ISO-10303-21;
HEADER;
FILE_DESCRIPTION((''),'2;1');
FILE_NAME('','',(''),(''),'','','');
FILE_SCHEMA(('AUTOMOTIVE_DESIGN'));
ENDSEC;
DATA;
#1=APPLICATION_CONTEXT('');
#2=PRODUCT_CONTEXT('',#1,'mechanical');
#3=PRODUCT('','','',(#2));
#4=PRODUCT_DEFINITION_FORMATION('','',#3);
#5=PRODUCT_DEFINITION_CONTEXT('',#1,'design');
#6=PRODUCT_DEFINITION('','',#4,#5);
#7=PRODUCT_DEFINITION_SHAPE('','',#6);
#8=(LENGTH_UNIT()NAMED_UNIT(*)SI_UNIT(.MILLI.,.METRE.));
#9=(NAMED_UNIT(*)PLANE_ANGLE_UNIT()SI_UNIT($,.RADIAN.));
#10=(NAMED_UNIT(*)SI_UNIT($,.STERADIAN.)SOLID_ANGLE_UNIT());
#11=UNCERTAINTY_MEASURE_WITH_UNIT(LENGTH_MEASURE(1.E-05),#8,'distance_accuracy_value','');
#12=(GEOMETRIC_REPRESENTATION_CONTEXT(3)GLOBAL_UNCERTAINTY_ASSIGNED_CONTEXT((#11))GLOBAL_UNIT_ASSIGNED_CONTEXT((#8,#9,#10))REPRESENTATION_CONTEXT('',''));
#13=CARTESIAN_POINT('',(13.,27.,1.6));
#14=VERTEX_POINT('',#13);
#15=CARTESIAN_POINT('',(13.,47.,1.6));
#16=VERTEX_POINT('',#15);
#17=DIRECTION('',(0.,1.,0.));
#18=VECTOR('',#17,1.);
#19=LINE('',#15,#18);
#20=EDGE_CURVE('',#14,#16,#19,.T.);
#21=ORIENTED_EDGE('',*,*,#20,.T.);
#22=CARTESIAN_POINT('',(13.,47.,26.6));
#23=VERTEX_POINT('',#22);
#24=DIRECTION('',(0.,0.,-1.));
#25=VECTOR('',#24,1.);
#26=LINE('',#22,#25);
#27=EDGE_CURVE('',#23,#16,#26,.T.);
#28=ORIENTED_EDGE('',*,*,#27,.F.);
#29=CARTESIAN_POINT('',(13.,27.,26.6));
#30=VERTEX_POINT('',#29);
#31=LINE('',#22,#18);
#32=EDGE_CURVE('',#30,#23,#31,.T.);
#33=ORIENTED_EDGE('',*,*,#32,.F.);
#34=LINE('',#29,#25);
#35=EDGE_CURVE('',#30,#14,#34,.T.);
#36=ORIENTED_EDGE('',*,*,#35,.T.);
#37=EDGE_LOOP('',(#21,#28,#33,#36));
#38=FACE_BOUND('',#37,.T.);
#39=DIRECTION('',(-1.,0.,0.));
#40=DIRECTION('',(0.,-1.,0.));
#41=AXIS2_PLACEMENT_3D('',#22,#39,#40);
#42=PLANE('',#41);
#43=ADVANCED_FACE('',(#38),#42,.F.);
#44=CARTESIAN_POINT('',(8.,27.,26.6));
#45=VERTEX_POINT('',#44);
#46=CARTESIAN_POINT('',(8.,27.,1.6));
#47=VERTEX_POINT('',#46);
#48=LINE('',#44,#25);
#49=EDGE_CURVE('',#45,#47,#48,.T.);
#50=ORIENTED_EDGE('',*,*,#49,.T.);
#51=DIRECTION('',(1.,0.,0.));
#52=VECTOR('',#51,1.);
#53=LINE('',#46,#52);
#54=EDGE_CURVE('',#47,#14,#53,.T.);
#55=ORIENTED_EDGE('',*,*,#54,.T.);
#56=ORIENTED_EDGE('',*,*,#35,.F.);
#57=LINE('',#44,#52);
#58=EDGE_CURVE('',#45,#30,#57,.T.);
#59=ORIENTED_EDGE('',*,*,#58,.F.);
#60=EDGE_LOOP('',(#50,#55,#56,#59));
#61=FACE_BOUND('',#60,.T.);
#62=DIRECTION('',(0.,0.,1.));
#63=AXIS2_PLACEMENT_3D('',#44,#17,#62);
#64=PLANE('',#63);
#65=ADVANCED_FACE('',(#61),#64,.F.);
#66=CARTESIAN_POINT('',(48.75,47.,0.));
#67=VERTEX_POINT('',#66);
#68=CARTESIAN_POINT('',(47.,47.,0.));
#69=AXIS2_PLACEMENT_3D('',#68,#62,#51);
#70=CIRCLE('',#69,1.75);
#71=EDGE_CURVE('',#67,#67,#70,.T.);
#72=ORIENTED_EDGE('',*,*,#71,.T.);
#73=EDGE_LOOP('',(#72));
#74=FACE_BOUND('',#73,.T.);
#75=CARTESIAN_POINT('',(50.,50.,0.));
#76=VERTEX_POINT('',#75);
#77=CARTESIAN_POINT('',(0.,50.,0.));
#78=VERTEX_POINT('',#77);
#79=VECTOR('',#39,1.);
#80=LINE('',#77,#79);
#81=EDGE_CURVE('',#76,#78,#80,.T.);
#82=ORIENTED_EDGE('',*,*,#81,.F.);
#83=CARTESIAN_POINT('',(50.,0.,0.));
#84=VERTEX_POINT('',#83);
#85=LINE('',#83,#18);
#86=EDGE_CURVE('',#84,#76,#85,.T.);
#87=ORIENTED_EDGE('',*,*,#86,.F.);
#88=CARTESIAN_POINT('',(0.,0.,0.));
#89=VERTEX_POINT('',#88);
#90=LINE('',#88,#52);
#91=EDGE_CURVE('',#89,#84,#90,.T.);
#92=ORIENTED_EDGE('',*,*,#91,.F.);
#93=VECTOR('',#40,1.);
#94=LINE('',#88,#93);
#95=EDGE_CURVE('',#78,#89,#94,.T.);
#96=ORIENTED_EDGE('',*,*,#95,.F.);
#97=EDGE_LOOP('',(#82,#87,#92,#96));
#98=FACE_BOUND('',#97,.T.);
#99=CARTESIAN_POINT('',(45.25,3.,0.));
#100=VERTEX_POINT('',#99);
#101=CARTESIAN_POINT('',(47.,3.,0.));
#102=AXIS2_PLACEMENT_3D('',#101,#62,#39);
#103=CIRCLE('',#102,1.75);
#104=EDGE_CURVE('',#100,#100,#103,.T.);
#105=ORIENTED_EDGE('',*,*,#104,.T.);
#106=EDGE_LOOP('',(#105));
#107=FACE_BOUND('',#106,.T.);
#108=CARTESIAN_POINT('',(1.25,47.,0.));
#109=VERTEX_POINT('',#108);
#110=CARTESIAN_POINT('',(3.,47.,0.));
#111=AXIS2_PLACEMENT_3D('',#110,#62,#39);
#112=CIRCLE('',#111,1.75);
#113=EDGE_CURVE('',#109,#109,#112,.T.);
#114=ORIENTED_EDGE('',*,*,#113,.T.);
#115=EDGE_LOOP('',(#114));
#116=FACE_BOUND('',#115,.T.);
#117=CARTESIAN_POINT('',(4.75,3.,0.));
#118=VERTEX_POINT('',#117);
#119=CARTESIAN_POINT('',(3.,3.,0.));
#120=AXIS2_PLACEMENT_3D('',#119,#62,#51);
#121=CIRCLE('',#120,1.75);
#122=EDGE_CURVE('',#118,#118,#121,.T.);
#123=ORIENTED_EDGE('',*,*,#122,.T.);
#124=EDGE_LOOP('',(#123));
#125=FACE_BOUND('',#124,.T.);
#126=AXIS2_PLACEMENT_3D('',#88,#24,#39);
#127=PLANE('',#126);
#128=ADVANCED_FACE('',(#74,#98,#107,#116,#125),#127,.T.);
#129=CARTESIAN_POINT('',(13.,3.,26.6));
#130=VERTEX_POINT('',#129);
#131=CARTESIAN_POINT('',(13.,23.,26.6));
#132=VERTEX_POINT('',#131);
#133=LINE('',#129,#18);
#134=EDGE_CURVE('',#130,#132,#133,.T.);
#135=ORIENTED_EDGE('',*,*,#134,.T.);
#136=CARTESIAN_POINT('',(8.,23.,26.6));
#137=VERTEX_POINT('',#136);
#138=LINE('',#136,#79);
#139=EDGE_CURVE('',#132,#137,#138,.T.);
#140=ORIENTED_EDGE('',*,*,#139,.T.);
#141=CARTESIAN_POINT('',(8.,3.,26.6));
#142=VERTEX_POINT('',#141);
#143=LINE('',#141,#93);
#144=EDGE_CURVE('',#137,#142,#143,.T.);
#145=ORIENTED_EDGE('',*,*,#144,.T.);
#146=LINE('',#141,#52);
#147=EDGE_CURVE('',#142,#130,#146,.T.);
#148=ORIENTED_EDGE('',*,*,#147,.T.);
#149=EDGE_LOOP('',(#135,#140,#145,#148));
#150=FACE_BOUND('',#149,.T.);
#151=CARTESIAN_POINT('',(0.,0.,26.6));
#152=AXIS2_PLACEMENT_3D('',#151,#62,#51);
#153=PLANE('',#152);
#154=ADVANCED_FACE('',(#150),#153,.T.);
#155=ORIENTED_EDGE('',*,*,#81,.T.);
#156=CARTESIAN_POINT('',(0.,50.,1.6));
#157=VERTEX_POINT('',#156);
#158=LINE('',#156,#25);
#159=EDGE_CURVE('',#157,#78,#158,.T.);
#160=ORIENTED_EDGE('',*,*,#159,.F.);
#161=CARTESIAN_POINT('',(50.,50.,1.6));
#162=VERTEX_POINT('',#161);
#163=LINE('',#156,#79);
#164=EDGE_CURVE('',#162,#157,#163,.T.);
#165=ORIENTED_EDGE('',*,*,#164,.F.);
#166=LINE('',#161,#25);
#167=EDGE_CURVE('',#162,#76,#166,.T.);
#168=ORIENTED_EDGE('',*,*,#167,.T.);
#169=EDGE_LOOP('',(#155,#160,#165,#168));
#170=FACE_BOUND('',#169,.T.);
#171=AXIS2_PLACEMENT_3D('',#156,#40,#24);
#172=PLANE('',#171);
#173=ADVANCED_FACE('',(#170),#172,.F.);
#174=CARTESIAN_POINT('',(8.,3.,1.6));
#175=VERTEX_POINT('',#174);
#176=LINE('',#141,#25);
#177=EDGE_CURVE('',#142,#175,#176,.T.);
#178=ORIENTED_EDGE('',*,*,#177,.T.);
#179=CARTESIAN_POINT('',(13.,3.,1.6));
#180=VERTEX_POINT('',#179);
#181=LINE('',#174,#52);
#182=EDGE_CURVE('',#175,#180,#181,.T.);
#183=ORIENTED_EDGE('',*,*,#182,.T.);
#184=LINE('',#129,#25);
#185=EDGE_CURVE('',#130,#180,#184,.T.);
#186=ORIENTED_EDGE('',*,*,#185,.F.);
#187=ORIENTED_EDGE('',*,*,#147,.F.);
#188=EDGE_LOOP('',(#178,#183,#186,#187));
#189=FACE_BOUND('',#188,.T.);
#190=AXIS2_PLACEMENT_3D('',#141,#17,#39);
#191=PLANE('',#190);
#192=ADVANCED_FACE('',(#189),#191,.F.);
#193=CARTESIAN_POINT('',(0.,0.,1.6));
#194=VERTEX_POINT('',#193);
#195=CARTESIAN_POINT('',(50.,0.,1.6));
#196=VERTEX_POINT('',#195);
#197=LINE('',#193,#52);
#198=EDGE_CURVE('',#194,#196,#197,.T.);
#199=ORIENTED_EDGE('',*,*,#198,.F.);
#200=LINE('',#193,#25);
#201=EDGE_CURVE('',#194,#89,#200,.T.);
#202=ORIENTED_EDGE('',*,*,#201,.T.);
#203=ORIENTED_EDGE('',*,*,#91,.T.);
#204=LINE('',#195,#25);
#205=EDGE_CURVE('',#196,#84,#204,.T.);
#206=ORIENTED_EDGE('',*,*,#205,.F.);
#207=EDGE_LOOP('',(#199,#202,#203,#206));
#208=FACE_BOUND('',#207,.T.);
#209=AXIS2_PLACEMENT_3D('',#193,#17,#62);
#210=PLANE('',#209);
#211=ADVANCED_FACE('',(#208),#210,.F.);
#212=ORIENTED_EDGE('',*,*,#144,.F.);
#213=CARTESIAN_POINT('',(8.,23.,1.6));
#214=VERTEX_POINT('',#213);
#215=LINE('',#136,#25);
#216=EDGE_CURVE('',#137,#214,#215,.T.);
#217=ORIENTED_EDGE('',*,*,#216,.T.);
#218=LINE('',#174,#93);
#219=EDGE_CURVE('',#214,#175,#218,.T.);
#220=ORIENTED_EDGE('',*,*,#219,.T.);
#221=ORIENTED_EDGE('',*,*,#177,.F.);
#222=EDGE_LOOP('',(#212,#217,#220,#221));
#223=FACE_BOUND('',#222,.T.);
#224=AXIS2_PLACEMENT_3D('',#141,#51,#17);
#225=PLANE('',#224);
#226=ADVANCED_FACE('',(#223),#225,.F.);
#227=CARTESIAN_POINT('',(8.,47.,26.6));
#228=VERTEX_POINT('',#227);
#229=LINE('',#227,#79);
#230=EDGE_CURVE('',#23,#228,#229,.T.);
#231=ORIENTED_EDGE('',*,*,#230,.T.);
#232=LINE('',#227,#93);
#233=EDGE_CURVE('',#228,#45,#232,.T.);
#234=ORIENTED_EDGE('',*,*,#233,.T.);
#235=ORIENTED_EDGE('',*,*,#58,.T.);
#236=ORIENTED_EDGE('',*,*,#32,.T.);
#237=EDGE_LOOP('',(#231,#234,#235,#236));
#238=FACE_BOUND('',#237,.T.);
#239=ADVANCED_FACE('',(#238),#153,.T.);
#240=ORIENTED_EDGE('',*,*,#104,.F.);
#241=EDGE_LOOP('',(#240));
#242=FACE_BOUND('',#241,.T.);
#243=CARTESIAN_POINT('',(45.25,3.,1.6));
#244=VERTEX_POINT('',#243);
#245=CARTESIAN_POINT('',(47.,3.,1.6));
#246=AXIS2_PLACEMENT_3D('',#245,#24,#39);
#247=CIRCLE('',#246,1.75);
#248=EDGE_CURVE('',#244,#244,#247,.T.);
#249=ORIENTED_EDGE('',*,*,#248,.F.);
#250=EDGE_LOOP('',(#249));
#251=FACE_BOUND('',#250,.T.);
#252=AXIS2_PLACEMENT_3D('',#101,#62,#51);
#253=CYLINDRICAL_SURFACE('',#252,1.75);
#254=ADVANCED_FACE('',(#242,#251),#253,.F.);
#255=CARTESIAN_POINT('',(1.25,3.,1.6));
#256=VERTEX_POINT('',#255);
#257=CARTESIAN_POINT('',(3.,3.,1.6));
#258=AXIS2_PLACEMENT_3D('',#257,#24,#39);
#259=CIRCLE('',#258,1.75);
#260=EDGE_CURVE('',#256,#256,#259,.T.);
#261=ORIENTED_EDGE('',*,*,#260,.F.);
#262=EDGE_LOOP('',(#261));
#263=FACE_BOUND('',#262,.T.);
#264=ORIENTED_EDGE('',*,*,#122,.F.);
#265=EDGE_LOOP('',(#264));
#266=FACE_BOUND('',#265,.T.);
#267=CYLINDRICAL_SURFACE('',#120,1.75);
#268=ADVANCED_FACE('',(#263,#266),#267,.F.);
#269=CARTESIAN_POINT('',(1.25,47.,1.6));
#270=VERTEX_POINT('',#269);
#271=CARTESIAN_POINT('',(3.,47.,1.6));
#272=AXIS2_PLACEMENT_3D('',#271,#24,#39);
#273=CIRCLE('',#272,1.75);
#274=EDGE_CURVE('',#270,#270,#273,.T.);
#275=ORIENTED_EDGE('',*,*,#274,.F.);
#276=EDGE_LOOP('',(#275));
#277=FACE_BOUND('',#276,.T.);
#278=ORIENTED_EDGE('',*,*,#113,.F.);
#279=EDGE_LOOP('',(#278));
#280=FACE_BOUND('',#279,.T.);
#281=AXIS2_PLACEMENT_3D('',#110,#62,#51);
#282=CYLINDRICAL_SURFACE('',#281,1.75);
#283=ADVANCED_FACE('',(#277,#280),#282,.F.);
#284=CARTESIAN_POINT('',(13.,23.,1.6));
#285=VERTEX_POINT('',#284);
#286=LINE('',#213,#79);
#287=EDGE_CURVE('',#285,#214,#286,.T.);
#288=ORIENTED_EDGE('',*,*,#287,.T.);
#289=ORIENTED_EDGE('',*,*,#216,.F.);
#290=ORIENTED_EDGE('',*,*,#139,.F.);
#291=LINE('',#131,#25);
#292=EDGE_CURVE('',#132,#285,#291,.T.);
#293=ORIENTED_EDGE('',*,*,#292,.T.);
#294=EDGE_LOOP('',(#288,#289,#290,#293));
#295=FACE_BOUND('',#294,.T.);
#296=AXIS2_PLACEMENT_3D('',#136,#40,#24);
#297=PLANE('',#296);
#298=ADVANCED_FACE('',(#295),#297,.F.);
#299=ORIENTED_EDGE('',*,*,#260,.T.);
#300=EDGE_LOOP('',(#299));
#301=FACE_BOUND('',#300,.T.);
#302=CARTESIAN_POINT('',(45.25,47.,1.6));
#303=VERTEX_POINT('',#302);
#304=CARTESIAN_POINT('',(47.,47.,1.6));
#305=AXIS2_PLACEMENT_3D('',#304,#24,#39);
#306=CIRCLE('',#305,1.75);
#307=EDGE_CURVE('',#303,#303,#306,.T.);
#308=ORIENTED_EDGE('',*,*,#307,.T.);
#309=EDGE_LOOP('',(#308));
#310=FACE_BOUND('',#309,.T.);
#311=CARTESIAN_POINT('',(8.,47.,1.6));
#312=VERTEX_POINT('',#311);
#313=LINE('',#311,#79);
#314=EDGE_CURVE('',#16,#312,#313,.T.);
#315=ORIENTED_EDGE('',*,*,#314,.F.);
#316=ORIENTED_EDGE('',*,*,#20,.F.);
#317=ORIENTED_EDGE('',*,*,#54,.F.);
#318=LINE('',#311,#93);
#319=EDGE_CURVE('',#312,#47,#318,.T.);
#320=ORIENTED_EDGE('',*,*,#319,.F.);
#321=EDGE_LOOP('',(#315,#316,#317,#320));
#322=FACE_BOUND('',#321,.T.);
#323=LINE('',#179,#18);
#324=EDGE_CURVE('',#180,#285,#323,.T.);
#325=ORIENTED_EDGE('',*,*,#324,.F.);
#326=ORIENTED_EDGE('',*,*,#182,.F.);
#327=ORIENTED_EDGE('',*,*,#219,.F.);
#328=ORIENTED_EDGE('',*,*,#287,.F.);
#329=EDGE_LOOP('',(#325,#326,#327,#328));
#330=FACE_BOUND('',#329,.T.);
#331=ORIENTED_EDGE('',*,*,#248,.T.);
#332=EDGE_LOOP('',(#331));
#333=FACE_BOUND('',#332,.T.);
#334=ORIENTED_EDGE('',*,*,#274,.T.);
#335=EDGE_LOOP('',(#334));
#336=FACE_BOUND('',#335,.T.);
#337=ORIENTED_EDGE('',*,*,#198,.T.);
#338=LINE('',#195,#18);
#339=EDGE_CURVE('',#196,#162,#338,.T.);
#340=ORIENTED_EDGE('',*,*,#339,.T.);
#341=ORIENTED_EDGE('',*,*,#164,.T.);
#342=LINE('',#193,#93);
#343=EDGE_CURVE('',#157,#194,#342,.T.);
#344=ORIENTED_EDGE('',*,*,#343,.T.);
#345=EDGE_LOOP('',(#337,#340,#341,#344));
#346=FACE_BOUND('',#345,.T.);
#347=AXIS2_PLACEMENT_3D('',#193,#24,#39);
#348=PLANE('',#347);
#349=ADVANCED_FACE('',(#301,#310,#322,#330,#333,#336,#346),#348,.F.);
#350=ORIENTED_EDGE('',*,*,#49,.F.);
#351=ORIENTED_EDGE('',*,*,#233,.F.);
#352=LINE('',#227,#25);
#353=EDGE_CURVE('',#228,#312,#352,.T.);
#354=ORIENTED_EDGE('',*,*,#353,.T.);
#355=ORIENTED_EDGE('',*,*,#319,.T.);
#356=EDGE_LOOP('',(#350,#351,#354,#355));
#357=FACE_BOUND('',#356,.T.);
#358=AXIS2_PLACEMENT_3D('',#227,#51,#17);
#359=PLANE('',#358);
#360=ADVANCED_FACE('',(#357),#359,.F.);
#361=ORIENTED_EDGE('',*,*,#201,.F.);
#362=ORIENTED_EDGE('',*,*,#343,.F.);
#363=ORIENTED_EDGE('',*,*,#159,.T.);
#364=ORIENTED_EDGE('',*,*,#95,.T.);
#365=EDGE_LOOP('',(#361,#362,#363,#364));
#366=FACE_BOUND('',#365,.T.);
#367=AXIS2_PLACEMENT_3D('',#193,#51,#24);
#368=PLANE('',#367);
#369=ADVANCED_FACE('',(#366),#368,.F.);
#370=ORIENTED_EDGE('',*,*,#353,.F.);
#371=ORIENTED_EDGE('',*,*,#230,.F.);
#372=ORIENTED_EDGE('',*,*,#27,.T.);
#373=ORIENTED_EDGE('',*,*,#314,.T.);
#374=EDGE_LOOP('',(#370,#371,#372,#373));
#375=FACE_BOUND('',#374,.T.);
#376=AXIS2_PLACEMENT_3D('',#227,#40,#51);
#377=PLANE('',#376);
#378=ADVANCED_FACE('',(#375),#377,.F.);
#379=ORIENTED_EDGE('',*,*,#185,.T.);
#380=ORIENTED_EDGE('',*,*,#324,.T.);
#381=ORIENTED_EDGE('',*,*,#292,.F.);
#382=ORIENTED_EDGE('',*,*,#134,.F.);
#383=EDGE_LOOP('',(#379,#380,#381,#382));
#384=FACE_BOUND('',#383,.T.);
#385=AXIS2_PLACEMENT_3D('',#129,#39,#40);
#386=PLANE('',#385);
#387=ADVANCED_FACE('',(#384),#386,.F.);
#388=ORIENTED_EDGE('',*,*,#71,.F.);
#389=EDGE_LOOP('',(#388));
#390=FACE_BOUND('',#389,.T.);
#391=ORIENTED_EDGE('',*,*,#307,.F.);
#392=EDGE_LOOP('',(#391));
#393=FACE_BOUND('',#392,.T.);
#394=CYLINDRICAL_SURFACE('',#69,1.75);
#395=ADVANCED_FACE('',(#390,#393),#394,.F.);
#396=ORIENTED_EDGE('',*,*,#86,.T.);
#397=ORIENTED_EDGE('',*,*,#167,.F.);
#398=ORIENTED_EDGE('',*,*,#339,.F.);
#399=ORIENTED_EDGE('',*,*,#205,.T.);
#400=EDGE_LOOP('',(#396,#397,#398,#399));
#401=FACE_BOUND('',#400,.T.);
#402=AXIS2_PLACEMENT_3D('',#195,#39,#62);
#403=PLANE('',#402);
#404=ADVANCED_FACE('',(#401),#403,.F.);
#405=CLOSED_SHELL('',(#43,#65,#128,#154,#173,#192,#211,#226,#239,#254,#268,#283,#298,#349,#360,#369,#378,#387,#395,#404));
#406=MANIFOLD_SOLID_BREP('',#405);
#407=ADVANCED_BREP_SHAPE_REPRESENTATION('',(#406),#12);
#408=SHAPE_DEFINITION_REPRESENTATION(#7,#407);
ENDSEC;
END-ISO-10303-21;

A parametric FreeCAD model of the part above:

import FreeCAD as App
import Part
import Sketcher

V = App.Vector
Q = App.Units.Quantity

doc = App.newDocument("Part")
body = doc.addObject("PartDesign::Body", "Body")

sketch1 = body.newObject("Sketcher::SketchObject", "Sketch")
sketch1.AttachmentSupport = (doc.getObject("XY_Plane"), [""])
sketch1.MapMode = "FlatFace"
sketch1.addGeometry([
    Part.LineSegment(V(0, 50, 0), V(0, 0, 0)),
    Part.LineSegment(V(0, 0, 0), V(50, 0, 0)),
    Part.LineSegment(V(50, 0, 0), V(50, 50, 0)),
    Part.LineSegment(V(50, 50, 0), V(0, 50, 0)),
], False)
sketch1.addConstraint([
    Sketcher.Constraint("Coincident", 0, 2, 1, 1),
    Sketcher.Constraint("Coincident", 1, 2, 2, 1),
    Sketcher.Constraint("Coincident", 2, 2, 3, 1),
    Sketcher.Constraint("Coincident", 3, 2, 0, 1),
    Sketcher.Constraint("Vertical", 0),
    Sketcher.Constraint("Horizontal", 1),
    Sketcher.Constraint("Vertical", 2),
    Sketcher.Constraint("Horizontal", 3),
    Sketcher.Constraint("Coincident", 0, 2, -1, 1),
    Sketcher.Constraint("Equal", 3, 0),
    Sketcher.Constraint("DistanceX", 1, 1, 1, 2, Q("50 mm")),
])
pad1 = body.newObject("PartDesign::Pad", "Pad")
pad1.Profile = sketch1
pad1.Length = 1.6

sketch2 = body.newObject("Sketcher::SketchObject", "Sketch001")
sketch2.AttachmentSupport = (doc.getObject("XY_Plane"), [""])
sketch2.MapMode = "FlatFace"
sketch2.AttachmentOffset = App.Placement(V(0, 0, 1.6), App.Rotation())
sketch2.addGeometry([
    Part.Circle(V(3, 3, 0), V(0, 0, 1), 1.8),
    Part.Circle(V(47, 3, 0), V(0, 0, 1), 1.8),
    Part.Circle(V(47, 47, 0), V(0, 0, 1), 1.8),
    Part.Circle(V(3, 47, 0), V(0, 0, 1), 1.8),
], False)
sketch2.addConstraint([
    Sketcher.Constraint("Equal", 0, 1),
    Sketcher.Constraint("Equal", 1, 2),
    Sketcher.Constraint("Equal", 2, 3),
    Sketcher.Constraint("Horizontal", 0, 3, 1, 3),
    Sketcher.Constraint("Horizontal", 2, 3, 3, 3),
    Sketcher.Constraint("Vertical", 1, 3, 2, 3),
    Sketcher.Constraint("Vertical", 0, 3, 3, 3),
    Sketcher.Constraint("Diameter", 0, Q("3.5 mm")),
    Sketcher.Constraint("DistanceX", -1, 1, 0, 3, Q("3 mm")),
    Sketcher.Constraint("DistanceY", -1, 1, 0, 3, Q("3 mm")),
    Sketcher.Constraint("DistanceX", -1, 1, 1, 3, Q("47 mm")),
    Sketcher.Constraint("DistanceY", -1, 1, 2, 3, Q("47 mm")),
])
pocket1 = body.newObject("PartDesign::Pocket", "Pocket")
pocket1.Profile = sketch2
pocket1.Type = "ThroughAll"
pocket1.Midplane = True

sketch3 = body.newObject("Sketcher::SketchObject", "Sketch002")
sketch3.AttachmentSupport = (doc.getObject("XY_Plane"), [""])
sketch3.MapMode = "FlatFace"
sketch3.AttachmentOffset = App.Placement(V(0, 0, 1.6), App.Rotation())
sketch3.addGeometry([
    Part.LineSegment(V(8, 47, 0), V(8, 27, 0)),
    Part.LineSegment(V(8, 27, 0), V(13, 27, 0)),
    Part.LineSegment(V(13, 27, 0), V(13, 47, 0)),
    Part.LineSegment(V(13, 47, 0), V(8, 47, 0)),
    Part.LineSegment(V(8, 23, 0), V(8, 3, 0)),
    Part.LineSegment(V(8, 3, 0), V(13, 3, 0)),
    Part.LineSegment(V(13, 3, 0), V(13, 23, 0)),
    Part.LineSegment(V(13, 23, 0), V(8, 23, 0)),
], False)
sketch3.addConstraint([
    Sketcher.Constraint("Coincident", 0, 2, 1, 1),
    Sketcher.Constraint("Coincident", 1, 2, 2, 1),
    Sketcher.Constraint("Coincident", 2, 2, 3, 1),
    Sketcher.Constraint("Coincident", 3, 2, 0, 1),
    Sketcher.Constraint("Coincident", 4, 2, 5, 1),
    Sketcher.Constraint("Coincident", 5, 2, 6, 1),
    Sketcher.Constraint("Coincident", 6, 2, 7, 1),
    Sketcher.Constraint("Coincident", 7, 2, 4, 1),
    Sketcher.Constraint("Vertical", 0),
    Sketcher.Constraint("Horizontal", 1),
    Sketcher.Constraint("Vertical", 2),
    Sketcher.Constraint("Horizontal", 3),
    Sketcher.Constraint("Vertical", 4),
    Sketcher.Constraint("Horizontal", 5),
    Sketcher.Constraint("Vertical", 6),
    Sketcher.Constraint("Horizontal", 7),
    Sketcher.Constraint("Vertical", 3, 2, 4, 2),
    Sketcher.Constraint("Vertical", 2, 2, 5, 2),
    Sketcher.Constraint("Equal", 2, 4),
    Sketcher.Constraint("DistanceX", 1, 1, 1, 2, Q("5 mm")),
    Sketcher.Constraint("DistanceY", 0, 2, 0, 1, Q("20 mm")),
    Sketcher.Constraint("DistanceX", -1, 1, 0, 2, Q("8 mm")),
    Sketcher.Constraint("DistanceY", -1, 1, 0, 2, Q("27 mm")),
    Sketcher.Constraint("DistanceY", -1, 1, 4, 2, Q("3 mm")),
])
pad2 = body.newObject("PartDesign::Pad", "Pad001")
pad2.Profile = sketch3
pad2.Length = 25

doc.recompute()
